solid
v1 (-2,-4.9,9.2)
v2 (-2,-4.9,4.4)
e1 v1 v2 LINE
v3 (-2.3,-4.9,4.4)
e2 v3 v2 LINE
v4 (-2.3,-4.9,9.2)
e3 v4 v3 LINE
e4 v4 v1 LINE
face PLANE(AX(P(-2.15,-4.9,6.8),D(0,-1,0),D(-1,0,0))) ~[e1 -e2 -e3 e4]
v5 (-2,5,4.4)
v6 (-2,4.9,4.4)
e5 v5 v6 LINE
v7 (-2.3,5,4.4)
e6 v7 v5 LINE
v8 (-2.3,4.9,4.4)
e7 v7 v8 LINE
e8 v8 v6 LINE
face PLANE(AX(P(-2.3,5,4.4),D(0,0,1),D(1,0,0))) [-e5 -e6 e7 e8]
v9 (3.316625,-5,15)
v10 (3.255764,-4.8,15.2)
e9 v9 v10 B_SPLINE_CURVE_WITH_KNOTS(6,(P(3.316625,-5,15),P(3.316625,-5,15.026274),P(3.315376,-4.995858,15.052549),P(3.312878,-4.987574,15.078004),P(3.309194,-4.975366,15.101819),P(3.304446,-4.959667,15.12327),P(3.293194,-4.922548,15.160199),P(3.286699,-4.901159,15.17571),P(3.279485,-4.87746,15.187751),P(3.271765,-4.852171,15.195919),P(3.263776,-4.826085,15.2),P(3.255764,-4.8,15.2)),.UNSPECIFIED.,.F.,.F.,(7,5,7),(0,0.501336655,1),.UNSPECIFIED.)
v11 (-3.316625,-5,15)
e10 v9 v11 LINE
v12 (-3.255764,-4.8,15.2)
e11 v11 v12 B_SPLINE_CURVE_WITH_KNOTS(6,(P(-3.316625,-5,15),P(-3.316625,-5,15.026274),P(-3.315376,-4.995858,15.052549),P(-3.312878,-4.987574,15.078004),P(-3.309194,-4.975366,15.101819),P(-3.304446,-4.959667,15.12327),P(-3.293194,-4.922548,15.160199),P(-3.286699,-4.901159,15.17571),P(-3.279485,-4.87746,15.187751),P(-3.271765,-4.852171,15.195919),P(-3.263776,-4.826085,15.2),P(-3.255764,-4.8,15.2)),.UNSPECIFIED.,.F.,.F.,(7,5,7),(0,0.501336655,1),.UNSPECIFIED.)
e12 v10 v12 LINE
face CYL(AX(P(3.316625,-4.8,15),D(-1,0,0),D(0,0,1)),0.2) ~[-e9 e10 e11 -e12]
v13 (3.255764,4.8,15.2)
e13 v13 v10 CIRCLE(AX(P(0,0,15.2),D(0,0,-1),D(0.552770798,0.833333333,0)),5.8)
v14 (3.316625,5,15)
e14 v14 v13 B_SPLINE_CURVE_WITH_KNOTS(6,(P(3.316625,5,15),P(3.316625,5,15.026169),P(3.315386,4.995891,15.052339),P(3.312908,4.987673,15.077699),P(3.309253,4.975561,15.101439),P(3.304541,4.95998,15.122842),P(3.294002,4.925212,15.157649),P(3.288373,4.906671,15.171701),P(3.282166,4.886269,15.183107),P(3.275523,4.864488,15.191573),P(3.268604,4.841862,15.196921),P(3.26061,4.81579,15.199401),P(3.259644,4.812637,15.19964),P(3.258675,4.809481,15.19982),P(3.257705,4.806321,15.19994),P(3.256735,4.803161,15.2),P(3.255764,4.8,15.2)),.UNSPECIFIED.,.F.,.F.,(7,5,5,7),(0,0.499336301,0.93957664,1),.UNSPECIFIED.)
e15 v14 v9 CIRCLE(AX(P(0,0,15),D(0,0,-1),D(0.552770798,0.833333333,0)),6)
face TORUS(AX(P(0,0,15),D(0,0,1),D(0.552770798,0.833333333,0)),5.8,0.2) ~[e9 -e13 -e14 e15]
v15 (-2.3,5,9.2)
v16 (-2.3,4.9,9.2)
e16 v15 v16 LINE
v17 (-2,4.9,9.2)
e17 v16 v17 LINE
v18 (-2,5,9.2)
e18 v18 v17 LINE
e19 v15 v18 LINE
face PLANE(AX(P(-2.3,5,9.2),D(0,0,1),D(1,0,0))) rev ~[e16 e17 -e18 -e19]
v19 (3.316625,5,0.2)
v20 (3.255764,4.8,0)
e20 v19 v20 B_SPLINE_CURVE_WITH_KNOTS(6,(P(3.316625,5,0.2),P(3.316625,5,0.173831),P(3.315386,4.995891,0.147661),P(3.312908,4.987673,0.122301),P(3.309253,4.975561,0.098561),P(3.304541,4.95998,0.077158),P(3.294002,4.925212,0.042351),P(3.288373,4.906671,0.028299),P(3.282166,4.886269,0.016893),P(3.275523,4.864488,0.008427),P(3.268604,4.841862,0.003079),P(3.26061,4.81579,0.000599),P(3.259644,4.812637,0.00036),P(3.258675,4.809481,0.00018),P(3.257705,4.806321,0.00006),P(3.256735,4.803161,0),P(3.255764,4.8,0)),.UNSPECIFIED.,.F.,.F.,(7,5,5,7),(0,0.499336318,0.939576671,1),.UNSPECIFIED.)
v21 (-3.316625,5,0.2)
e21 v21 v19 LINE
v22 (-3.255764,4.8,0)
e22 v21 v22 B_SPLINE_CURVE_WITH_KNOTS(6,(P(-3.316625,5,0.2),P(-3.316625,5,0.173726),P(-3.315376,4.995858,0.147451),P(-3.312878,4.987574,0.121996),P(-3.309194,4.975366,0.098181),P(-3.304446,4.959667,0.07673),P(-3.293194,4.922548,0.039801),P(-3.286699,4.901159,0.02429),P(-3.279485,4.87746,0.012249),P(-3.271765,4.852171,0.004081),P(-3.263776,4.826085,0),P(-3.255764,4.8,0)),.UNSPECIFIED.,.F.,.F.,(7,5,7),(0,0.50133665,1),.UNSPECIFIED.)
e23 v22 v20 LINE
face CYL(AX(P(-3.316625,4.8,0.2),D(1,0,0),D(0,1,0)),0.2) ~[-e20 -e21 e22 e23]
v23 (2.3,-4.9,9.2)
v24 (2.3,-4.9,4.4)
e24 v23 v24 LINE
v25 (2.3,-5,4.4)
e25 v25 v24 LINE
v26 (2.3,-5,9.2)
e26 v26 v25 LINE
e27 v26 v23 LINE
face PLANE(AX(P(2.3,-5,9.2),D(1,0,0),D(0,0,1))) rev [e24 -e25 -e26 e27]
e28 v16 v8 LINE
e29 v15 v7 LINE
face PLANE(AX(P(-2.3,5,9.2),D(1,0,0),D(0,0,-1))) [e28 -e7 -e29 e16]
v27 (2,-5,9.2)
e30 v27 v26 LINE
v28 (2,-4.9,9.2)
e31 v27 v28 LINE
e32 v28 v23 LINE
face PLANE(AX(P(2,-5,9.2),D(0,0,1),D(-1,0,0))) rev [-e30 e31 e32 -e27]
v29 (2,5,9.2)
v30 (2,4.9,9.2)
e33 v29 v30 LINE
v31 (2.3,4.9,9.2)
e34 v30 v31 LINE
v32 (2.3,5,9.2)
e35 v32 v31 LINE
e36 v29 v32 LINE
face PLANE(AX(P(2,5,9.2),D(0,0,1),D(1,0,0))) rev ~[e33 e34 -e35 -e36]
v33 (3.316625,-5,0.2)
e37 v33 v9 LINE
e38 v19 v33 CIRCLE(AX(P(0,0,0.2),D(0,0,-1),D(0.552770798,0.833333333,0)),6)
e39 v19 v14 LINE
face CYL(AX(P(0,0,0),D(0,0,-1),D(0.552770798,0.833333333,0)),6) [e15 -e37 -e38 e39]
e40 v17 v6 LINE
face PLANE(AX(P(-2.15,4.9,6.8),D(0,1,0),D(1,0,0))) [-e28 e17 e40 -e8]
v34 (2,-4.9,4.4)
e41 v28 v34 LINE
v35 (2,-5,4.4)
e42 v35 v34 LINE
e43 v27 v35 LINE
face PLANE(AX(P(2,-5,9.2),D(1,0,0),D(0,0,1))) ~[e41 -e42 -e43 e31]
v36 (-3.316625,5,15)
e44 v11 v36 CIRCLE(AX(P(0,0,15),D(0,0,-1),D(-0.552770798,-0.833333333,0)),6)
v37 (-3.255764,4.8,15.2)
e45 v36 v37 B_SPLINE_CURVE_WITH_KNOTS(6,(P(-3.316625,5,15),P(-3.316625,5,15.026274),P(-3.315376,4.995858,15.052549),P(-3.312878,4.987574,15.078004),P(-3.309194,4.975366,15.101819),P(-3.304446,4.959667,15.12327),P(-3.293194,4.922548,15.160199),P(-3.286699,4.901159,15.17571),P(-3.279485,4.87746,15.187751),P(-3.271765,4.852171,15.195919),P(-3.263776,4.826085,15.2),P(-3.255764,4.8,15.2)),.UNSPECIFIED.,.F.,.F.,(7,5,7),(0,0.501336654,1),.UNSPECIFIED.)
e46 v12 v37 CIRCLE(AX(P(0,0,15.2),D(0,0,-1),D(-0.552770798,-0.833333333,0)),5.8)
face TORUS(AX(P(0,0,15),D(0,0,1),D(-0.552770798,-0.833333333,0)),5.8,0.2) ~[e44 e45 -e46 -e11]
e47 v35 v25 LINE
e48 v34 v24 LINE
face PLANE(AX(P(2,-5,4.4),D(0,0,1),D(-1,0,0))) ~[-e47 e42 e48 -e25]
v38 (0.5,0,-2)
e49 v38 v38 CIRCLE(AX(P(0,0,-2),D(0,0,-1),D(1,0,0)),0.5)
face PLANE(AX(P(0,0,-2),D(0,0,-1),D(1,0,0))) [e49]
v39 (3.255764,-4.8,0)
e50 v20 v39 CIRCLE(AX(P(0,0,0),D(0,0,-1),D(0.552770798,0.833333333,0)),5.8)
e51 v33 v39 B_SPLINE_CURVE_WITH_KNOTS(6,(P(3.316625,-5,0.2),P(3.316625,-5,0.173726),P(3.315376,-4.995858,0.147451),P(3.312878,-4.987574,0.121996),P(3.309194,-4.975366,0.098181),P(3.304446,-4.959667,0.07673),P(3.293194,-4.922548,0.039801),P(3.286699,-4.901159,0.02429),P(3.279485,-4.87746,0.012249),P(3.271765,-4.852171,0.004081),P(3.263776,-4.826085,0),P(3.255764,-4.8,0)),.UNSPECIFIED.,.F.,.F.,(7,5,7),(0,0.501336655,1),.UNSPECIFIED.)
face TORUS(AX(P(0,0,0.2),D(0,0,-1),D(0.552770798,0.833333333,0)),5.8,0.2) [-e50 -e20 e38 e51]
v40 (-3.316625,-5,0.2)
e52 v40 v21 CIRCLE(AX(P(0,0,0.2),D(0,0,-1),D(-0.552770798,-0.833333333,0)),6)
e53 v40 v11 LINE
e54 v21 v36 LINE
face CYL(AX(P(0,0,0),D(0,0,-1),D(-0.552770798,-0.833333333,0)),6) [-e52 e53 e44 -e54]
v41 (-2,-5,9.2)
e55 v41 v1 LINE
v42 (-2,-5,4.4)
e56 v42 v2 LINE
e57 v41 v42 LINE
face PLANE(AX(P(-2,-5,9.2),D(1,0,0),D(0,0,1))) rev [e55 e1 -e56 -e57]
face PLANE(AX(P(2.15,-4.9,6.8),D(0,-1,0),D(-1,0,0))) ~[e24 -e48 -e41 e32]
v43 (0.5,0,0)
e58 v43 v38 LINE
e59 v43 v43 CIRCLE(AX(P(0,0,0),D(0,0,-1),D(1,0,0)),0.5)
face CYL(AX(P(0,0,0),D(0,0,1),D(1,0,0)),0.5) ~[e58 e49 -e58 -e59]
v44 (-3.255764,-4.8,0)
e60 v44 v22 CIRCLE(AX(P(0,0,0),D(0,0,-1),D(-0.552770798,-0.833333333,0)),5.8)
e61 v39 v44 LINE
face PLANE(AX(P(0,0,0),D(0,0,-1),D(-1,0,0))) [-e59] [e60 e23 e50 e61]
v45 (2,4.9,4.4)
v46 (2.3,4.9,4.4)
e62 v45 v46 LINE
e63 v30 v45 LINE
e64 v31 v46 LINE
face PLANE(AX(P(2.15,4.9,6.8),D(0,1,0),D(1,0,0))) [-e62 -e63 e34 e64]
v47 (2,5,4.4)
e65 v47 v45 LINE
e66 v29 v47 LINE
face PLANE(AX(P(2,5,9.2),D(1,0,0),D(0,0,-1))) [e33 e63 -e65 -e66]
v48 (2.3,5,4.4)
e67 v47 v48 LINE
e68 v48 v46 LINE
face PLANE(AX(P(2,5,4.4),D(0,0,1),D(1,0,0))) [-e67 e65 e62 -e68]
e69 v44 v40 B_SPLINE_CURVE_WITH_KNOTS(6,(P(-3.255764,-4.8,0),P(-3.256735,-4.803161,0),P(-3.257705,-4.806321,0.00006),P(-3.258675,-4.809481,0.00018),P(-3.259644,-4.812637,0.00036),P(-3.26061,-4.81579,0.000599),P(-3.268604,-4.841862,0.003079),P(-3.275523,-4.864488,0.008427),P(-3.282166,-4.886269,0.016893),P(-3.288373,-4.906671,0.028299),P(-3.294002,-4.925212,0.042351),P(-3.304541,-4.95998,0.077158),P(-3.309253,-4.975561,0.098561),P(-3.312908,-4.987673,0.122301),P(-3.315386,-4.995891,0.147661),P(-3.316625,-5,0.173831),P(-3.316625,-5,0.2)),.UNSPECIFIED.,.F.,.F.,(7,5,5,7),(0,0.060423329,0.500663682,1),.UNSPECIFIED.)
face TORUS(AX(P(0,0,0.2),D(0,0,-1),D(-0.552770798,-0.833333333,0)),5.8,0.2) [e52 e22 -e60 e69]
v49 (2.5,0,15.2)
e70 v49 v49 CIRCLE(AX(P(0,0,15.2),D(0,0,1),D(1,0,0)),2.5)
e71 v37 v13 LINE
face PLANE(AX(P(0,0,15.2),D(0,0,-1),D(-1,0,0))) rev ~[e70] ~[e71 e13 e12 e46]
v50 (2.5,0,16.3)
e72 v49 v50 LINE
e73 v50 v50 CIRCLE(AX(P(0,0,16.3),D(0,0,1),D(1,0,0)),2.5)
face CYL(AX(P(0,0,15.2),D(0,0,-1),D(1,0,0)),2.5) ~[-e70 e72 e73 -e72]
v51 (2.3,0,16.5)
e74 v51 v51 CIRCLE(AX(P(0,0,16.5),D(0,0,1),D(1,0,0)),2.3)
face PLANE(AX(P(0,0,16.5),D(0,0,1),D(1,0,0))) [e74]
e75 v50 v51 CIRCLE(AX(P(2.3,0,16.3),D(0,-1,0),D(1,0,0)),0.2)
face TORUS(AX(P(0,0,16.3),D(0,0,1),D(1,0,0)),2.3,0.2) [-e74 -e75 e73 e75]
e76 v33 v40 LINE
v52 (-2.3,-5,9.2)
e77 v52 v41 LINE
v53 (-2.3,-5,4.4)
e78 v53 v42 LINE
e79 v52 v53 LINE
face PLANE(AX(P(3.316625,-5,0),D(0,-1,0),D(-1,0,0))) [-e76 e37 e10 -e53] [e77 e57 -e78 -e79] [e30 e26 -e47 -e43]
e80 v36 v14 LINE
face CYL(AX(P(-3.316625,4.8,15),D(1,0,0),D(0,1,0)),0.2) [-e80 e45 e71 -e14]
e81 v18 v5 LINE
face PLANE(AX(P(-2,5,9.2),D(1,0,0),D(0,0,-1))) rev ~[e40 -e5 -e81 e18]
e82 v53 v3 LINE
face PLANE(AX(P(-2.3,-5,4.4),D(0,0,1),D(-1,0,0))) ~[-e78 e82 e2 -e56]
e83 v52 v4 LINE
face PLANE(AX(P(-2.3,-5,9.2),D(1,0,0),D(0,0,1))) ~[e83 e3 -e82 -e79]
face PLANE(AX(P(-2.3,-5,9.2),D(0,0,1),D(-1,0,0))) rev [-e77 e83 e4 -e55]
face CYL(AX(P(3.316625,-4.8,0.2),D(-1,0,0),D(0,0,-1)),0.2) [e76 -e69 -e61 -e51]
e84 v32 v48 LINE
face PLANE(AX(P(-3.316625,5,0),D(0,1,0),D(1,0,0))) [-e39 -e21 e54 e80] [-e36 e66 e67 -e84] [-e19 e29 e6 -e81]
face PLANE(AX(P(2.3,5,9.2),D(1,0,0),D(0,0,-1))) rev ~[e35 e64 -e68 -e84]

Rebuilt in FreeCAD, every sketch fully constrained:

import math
import FreeCAD as App
import Part
import Sketcher
from FreeCAD import Vector


def edges_at(feature, points):
    """Names of the edges that pass closest to the given points."""
    edges = feature.Shape.Edges
    near = lambda p: min(range(len(edges)), key=lambda i: edges[i].distToShape(Part.Vertex(*p))[0])
    return sorted({f"Edge{near(p) + 1}" for p in points})

doc = App.newDocument("Part")
body = doc.addObject("PartDesign::Body", "Body")

# Sketch on XY plane
sketch1 = body.newObject("Sketcher::SketchObject", "Sketch")
sketch1.AttachmentSupport = (doc.getObject("XY_Plane"), [""])
sketch1.MapMode = "FlatFace"
sketch1.addGeometry([
    Part.LineSegment(Vector(3, 5, 0), Vector(-3, 5, 0)),
    Part.ArcOfCircle(Part.Circle(Vector(0, 0, 0), Vector(0, 0, 1), 6), math.radians(124), math.radians(236)),
    Part.LineSegment(Vector(-3, -5, 0), Vector(3, -5, 0)),
    Part.ArcOfCircle(Part.Circle(Vector(0, 0, 0), Vector(0, 0, 1), 6), math.radians(-56), math.radians(56)),
], False)
sketch1.addConstraint([
    Sketcher.Constraint("Coincident", 0, 2, 1, 1),
    Sketcher.Constraint("Coincident", 1, 2, 2, 1),
    Sketcher.Constraint("Coincident", 2, 2, 3, 1),
    Sketcher.Constraint("Coincident", 3, 2, 0, 1),
    Sketcher.Constraint("Horizontal", 0),
    Sketcher.Constraint("Horizontal", 2),
    Sketcher.Constraint("Coincident", 1, 3, -1, 1),
    Sketcher.Constraint("Coincident", 3, 3, -1, 1),
    Sketcher.Constraint("Equal", 1, 3),
    Sketcher.Constraint("Vertical", 0, 2, 1, 2),
    Sketcher.Constraint("Radius", 1, 6.0),
    Sketcher.Constraint("DistanceY", -1, 1, 0, 2, 5.0),
])
pad1 = body.newObject("PartDesign::Pad", "Pad")
pad1.Profile = sketch1
pad1.Length = 15.2

# Sketch on XY plane
sketch2 = body.newObject("Sketcher::SketchObject", "Sketch001")
sketch2.AttachmentSupport = (doc.getObject("XY_Plane"), [""])
sketch2.MapMode = "FlatFace"
sketch2.AttachmentOffset = App.Placement(Vector(0, 0, 15.2), App.Rotation())
sketch2.addGeometry(Part.Circle(Vector(0, 0, 0), Vector(0, 0, 1), 2.5), False)
sketch2.addConstraint([
    Sketcher.Constraint("Coincident", 0, 3, -1, 1),
    Sketcher.Constraint("Diameter", 0, 5.0),
])
pad2 = body.newObject("PartDesign::Pad", "Pad001")
pad2.Profile = sketch2
pad2.Length = 1.3

# Sketch on XY plane
sketch3 = body.newObject("Sketcher::SketchObject", "Sketch002")
sketch3.AttachmentSupport = (doc.getObject("XY_Plane"), [""])
sketch3.MapMode = "FlatFace"
sketch3.addGeometry(Part.Circle(Vector(0, 0, 0), Vector(0, 0, 1), 0.5), False)
sketch3.addConstraint([
    Sketcher.Constraint("Coincident", 0, 3, -1, 1),
    Sketcher.Constraint("Diameter", 0, 1.0),
])
pad3 = body.newObject("PartDesign::Pad", "Pad002")
pad3.Profile = sketch3
pad3.Length = 2
pad3.Reversed = True
doc.recompute()

fillet = body.newObject("PartDesign::Fillet", "Fillet")
fillet.Base = (pad3, edges_at(pad3, [
    (6, 0, 15.2),
    (0, 5, 15.2),
    (-2.5, 0, 16.5),
    (-6, 0, 15.2),
    (0, 5, 0),
    (6, 0, 0),
    (0, -5, 0),
    (-6, 0, 0),
    (0, -5, 15.2),
]))
fillet.Radius = 0.2

# Sketch on XZ plane
sketch4 = body.newObject("Sketcher::SketchObject", "Sketch003")
sketch4.AttachmentSupport = (doc.getObject("XZ_Plane"), [""])
sketch4.MapMode = "FlatFace"
sketch4.AttachmentOffset = App.Placement(Vector(0, 0, -5), App.Rotation())
sketch4.addGeometry([
    Part.LineSegment(Vector(-2.3, 4.4, 0), Vector(-2.3, 9.2, 0)),  # 0
    Part.LineSegment(Vector(-2.3, 9.2, 0), Vector(-2, 9.2, 0)),  # 1
    Part.LineSegment(Vector(-2, 9.2, 0), Vector(-2, 4.4, 0)),  # 2
    Part.LineSegment(Vector(-2, 4.4, 0), Vector(-2.3, 4.4, 0)),  # 3
    Part.LineSegment(Vector(2, 4.4, 0), Vector(2, 9.2, 0)),  # 4
    Part.LineSegment(Vector(2, 9.2, 0), Vector(2.3, 9.2, 0)),  # 5
    Part.LineSegment(Vector(2.3, 9.2, 0), Vector(2.3, 4.4, 0)),  # 6
    Part.LineSegment(Vector(2.3, 4.4, 0), Vector(2, 4.4, 0)),  # 7
], False)
sketch4.addConstraint([
    Sketcher.Constraint("Coincident", 0, 2, 1, 1),
    Sketcher.Constraint("Coincident", 1, 2, 2, 1),
    Sketcher.Constraint("Coincident", 2, 2, 3, 1),
    Sketcher.Constraint("Coincident", 3, 2, 0, 1),
    Sketcher.Constraint("Coincident", 4, 2, 5, 1),
    Sketcher.Constraint("Coincident", 5, 2, 6, 1),
    Sketcher.Constraint("Coincident", 6, 2, 7, 1),
    Sketcher.Constraint("Coincident", 7, 2, 4, 1),
    Sketcher.Constraint("Vertical", 0),
    Sketcher.Constraint("Horizontal", 1),
    Sketcher.Constraint("Vertical", 2),
    Sketcher.Constraint("Horizontal", 3),
    Sketcher.Constraint("Vertical", 4),
    Sketcher.Constraint("Horizontal", 5),
    Sketcher.Constraint("Vertical", 6),
    Sketcher.Constraint("Horizontal", 7),
    Sketcher.Constraint("Symmetric", 1, 2, 4, 2, -2),
    Sketcher.Constraint("Symmetric", 3, 2, 6, 2, -2),
    Sketcher.Constraint("DistanceX", 1, 1, 1, 2, 0.3),
    Sketcher.Constraint("DistanceY", 0, 1, 0, 2, 4.8),
    Sketcher.Constraint("DistanceX", 1, 2, -1, 1, 2.0),
    Sketcher.Constraint("DistanceY", -1, 1, 0, 2, 9.2),
])
pocket1 = body.newObject("PartDesign::Pocket", "Pocket")
pocket1.Profile = sketch4
pocket1.Length = 0.1
pocket1.Reversed = True
doc.recompute()

mirrored = body.newObject("PartDesign::Mirrored", "Mirrored")
mirrored.Originals = [pocket1]
mirrored.MirrorPlane = (doc.getObject("XZ_Plane"), [""])
body.Tip = mirrored

doc.recompute()
